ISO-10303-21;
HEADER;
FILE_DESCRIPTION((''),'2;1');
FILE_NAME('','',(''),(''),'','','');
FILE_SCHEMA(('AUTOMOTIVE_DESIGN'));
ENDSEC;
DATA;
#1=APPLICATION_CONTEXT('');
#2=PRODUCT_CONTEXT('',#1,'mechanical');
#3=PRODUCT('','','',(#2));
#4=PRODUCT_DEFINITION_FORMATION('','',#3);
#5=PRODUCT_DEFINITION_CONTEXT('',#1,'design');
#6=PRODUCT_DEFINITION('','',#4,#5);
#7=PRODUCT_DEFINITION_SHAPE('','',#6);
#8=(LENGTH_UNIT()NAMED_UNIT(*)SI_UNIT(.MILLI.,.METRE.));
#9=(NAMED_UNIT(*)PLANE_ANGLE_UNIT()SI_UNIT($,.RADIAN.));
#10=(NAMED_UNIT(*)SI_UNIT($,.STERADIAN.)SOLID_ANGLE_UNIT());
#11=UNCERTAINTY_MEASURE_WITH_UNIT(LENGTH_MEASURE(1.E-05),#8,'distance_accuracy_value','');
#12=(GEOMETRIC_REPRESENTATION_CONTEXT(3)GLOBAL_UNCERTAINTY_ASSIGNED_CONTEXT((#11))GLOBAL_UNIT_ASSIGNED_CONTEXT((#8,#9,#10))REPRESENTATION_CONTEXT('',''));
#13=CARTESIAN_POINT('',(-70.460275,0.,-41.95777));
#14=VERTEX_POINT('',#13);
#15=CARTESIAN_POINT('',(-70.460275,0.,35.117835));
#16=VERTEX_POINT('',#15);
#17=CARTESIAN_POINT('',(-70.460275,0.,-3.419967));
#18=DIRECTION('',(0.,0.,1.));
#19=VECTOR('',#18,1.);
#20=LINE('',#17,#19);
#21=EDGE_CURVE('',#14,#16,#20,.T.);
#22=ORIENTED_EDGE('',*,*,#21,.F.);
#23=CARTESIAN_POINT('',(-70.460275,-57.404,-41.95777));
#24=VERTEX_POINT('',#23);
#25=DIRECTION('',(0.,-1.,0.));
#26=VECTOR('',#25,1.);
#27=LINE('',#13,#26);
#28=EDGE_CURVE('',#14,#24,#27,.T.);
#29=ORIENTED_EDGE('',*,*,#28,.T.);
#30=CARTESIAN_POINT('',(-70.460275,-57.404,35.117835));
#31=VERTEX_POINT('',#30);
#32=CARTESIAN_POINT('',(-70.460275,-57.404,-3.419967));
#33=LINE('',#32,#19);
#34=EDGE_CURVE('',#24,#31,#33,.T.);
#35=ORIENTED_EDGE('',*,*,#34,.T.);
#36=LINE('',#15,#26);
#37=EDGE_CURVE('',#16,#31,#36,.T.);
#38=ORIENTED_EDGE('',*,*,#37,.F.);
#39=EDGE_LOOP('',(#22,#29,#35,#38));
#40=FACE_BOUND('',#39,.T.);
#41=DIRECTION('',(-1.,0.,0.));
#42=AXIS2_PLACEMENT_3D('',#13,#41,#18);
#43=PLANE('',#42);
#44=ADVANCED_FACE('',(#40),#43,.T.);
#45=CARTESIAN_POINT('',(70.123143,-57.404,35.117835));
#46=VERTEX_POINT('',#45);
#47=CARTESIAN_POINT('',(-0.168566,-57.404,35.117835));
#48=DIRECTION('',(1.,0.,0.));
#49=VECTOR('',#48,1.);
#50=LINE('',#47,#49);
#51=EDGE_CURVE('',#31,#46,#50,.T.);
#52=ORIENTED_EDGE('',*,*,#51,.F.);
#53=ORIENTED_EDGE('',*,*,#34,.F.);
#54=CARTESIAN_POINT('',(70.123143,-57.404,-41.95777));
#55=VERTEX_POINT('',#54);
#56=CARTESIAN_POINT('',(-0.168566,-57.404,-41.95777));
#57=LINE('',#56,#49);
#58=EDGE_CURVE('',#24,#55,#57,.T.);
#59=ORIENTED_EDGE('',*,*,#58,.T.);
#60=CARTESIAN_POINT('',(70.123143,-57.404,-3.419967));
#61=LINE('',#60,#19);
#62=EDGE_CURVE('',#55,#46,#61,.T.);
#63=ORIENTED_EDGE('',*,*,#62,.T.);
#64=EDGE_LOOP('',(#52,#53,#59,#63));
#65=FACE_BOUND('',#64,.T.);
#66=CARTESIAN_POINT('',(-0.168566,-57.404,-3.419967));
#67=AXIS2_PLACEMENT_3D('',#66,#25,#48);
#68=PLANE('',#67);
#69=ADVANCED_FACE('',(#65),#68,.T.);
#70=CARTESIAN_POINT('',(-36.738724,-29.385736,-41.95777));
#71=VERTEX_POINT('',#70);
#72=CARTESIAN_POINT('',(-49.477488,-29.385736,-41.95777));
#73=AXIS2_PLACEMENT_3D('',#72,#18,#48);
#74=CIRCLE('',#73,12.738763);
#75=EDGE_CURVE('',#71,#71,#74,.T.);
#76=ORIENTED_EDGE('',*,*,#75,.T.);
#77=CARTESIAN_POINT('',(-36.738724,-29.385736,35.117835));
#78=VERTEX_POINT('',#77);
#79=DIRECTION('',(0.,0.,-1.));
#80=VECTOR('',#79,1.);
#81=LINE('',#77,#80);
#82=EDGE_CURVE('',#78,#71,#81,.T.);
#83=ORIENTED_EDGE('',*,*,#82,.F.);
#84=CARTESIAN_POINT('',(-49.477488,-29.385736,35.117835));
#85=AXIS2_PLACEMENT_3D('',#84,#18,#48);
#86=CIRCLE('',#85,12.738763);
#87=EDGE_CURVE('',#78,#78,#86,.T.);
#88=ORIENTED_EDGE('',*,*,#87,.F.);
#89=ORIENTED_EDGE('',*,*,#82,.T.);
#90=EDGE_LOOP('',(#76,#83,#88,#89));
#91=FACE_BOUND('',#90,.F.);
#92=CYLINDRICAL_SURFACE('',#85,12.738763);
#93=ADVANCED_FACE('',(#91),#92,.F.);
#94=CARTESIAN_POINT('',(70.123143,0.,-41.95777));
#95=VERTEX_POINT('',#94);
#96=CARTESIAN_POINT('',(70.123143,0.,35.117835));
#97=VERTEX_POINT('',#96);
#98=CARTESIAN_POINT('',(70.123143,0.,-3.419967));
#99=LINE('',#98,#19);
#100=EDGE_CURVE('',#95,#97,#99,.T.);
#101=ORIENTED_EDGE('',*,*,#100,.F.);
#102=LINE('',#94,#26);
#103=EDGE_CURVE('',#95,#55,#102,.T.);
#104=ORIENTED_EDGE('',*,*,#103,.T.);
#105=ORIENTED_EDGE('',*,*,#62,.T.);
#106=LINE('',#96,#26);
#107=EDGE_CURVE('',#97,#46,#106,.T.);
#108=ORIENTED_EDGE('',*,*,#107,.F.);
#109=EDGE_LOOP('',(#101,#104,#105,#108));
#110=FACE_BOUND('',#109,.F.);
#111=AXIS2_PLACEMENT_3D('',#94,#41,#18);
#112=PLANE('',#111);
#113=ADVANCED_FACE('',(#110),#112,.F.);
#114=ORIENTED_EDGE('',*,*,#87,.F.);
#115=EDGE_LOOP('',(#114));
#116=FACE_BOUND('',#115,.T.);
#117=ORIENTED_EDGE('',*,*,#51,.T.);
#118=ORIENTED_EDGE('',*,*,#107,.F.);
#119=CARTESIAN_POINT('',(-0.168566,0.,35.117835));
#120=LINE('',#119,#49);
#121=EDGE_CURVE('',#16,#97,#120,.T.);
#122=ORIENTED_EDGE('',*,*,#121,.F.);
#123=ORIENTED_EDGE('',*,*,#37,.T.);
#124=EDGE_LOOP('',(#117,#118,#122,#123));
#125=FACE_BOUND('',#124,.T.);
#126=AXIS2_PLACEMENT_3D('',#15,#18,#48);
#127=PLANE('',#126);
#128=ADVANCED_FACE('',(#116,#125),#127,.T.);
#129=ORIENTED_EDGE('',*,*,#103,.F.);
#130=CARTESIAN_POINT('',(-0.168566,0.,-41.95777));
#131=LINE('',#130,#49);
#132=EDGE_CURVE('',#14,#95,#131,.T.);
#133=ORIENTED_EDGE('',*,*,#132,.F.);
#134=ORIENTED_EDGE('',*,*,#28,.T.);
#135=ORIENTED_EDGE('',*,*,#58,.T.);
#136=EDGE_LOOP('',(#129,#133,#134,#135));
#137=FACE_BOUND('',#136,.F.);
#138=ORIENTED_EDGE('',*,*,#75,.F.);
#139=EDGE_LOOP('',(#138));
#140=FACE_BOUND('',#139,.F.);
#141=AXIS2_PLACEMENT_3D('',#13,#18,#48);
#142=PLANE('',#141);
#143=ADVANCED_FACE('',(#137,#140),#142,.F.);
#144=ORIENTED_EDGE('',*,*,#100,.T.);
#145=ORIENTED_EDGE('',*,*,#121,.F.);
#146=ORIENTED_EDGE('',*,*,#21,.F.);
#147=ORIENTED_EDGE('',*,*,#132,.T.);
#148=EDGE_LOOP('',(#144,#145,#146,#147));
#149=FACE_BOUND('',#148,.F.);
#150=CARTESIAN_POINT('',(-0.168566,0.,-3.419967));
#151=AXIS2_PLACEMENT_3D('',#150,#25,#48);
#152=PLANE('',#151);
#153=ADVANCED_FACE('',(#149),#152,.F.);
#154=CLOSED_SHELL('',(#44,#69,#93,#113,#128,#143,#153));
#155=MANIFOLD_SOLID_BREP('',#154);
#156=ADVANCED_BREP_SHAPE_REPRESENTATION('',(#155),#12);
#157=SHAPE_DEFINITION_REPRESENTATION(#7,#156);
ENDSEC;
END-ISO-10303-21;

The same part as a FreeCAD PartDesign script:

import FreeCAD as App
import Part
import Sketcher

V = App.Vector
Q = App.Units.Quantity

doc = App.newDocument("Part")
body = doc.addObject("PartDesign::Body", "Body")

# Sketch on XZ plane
sketch1 = body.newObject("Sketcher::SketchObject", "Sketch")
sketch1.AttachmentSupport = (doc.getObject("XZ_Plane"), [""])
sketch1.MapMode = "FlatFace"
sketch1.addGeometry(Part.LineSegment(V(-70.460275, 35.117835, 0), V(-70.460275, -41.95777, 0)), False)
sketch1.addGeometry(Part.LineSegment(V(-70.460275, -41.95777, 0), V(70.123143, -41.95777, 0)), False)
sketch1.addGeometry(Part.LineSegment(V(70.123143, -41.95777, 0), V(70.123143, 35.117835, 0)), False)
sketch1.addGeometry(Part.LineSegment(V(70.123143, 35.117835, 0), V(-70.460275, 35.117835, 0)), False)
sketch1.addConstraint(Sketcher.Constraint("Coincident", 0, 2, 1, 1))
sketch1.addConstraint(Sketcher.Constraint("Coincident", 1, 2, 2, 1))
sketch1.addConstraint(Sketcher.Constraint("Coincident", 2, 2, 3, 1))
sketch1.addConstraint(Sketcher.Constraint("Coincident", 3, 2, 0, 1))
sketch1.addConstraint(Sketcher.Constraint("Vertical", 0))
sketch1.addConstraint(Sketcher.Constraint("Horizontal", 1))
sketch1.addConstraint(Sketcher.Constraint("Vertical", 2))
sketch1.addConstraint(Sketcher.Constraint("Horizontal", 3))
sketch1.addConstraint(Sketcher.Constraint("DistanceX", 1, 1, 1, 2, Q("140.583418 mm")))
sketch1.addConstraint(Sketcher.Constraint("DistanceY", 0, 2, 0, 1, Q("77.075604 mm")))
sketch1.addConstraint(Sketcher.Constraint("DistanceY", 0, 2, -1, 1, Q("41.95777 mm")))
sketch1.addConstraint(Sketcher.Constraint("DistanceX", 0, 2, -1, 1, Q("70.460275 mm")))
pad1 = body.newObject("PartDesign::Pad", "Pad")
pad1.Profile = sketch1
pad1.Length = Q("2.26 in")

# Sketch on XY plane
sketch2 = body.newObject("Sketcher::SketchObject", "Sketch001")
sketch2.AttachmentSupport = (doc.getObject("XY_Plane"), [""])
sketch2.MapMode = "FlatFace"
sketch2.AttachmentOffset = App.Placement(V(0, 0, 35.117835), App.Rotation())
sketch2.addGeometry(Part.Circle(V(-49.477488, -29.385736, 0), V(0, 0, 1), 12.738763), False)
sketch2.addConstraint(Sketcher.Constraint("Diameter", 0, Q("25.477527 mm")))
sketch2.addConstraint(Sketcher.Constraint("DistanceX", 0, 3, -1, 1, Q("49.477488 mm")))
sketch2.addConstraint(Sketcher.Constraint("DistanceY", 0, 3, -1, 1, Q("29.385736 mm")))
pocket1 = body.newObject("PartDesign::Pocket", "Pocket")
pocket1.Profile = sketch2
pocket1.Length = Q("3.72 in")

doc.recompute()
